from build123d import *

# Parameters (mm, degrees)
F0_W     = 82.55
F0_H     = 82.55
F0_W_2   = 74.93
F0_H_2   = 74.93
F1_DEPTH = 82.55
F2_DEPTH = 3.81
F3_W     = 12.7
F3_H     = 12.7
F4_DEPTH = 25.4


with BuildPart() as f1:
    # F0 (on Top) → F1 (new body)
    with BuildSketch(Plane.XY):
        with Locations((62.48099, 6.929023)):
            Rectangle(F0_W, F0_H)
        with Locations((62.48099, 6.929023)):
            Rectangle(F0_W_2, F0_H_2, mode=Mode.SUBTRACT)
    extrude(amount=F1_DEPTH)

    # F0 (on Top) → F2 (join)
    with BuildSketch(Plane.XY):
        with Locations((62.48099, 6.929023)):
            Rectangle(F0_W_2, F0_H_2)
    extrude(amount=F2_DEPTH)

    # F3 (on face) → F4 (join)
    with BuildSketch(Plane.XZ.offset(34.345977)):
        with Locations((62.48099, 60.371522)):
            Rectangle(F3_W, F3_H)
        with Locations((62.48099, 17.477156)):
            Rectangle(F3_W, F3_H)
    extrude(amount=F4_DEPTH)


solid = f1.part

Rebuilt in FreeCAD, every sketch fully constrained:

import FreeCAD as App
import Part
import Sketcher
Q = App.Units.Quantity


def add_polygon(sketch, points):
    """Adds a closed chain of lines whose ends are joined by coincident constraints."""
    first, n = sketch.GeometryCount, len(points)
    for a, b in zip(points, points[1:] + points[:1]):
        sketch.addGeometry(Part.LineSegment(App.Vector(*a, 0), App.Vector(*b, 0)), False)
    for i in range(n):
        sketch.addConstraint(Sketcher.Constraint("Coincident", first + i, 2, first + (i + 1) % n, 1))

doc = App.newDocument("Part")
body = doc.addObject("PartDesign::Body", "Body")

sketch1 = doc.addObject("Sketcher::SketchObject", "Sketch")
body.addObject(sketch1)
sketch1.AttachmentSupport = (doc.XY_Plane, [""])
sketch1.MapMode = "FlatFace"
add_polygon(sketch1, [(21.20599, 48.204023), (21.20599, -34.345977), (103.75599, -34.345977), (103.75599, 48.204023)])
add_polygon(sketch1, [(99.94599, -30.535977), (25.01599, -30.535977), (25.01599, 44.394023), (99.94599, 44.394023)])
sketch1.addConstraint(Sketcher.Constraint("Vertical", 0))
sketch1.addConstraint(Sketcher.Constraint("Horizontal", 1))
sketch1.addConstraint(Sketcher.Constraint("Vertical", 2))
sketch1.addConstraint(Sketcher.Constraint("Horizontal", 3))
sketch1.addConstraint(Sketcher.Constraint("Horizontal", 4))
sketch1.addConstraint(Sketcher.Constraint("Vertical", 5))
sketch1.addConstraint(Sketcher.Constraint("Horizontal", 6))
sketch1.addConstraint(Sketcher.Constraint("Vertical", 7))
sketch1.addConstraint(Sketcher.Constraint("Equal", 3, 0))
sketch1.addConstraint(Sketcher.Constraint("Equal", 6, 5))
sketch1.addConstraint(Sketcher.Constraint("DistanceX", 1, 1, 1, 2, Q("3.25 in")))
sketch1.addConstraint(Sketcher.Constraint("DistanceX", 4, 2, 4, 1, Q("2.95 in")))
sketch1.addConstraint(Sketcher.Constraint("DistanceX", 4, 2, 1, 2, Q("3.1 in")))
sketch1.addConstraint(Sketcher.Constraint("DistanceY", 4, 2, 3, 2, Q("3.1 in")))
sketch1.addConstraint(Sketcher.Constraint("DistanceX", -1, 1, 0, 2, Q("21.20599 mm")))
sketch1.addConstraint(Sketcher.Constraint("DistanceY", 0, 2, -1, 1, Q("34.345977 mm")))
pad1 = doc.addObject("PartDesign::Pad", "Pad")
body.addObject(pad1)
pad1.Profile = sketch1
pad1.Length = Q("3.25 in")

sketch2 = doc.addObject("Sketcher::SketchObject", "Sketch001")
body.addObject(sketch2)
sketch2.AttachmentSupport = (doc.XY_Plane, [""])
sketch2.MapMode = "FlatFace"
add_polygon(sketch2, [(25.01599, 44.394023), (25.01599, -30.535977), (99.94599, -30.535977), (99.94599, 44.394023)])
sketch2.addConstraint(Sketcher.Constraint("Vertical", 0))
sketch2.addConstraint(Sketcher.Constraint("Horizontal", 1))
sketch2.addConstraint(Sketcher.Constraint("Vertical", 2))
sketch2.addConstraint(Sketcher.Constraint("Horizontal", 3))
sketch2.addConstraint(Sketcher.Constraint("Equal", 3, 0))
sketch2.addConstraint(Sketcher.Constraint("DistanceX", 1, 1, 1, 2, Q("2.95 in")))
sketch2.addConstraint(Sketcher.Constraint("DistanceX", -1, 1, 0, 2, Q("25.01599 mm")))
sketch2.addConstraint(Sketcher.Constraint("DistanceY", 0, 2, -1, 1, Q("30.535977 mm")))
pad2 = doc.addObject("PartDesign::Pad", "Pad001")
body.addObject(pad2)
pad2.Profile = sketch2
pad2.Length = Q("0.15 in")

sketch3 = doc.addObject("Sketcher::SketchObject", "Sketch002")
body.addObject(sketch3)
sketch3.AttachmentSupport = (doc.XZ_Plane, [""])
sketch3.MapMode = "FlatFace"
sketch3.AttachmentOffset = App.Placement(App.Vector(0, 0, 34.345977), App.Rotation())
add_polygon(sketch3, [(56.13099, 66.721522), (56.13099, 54.021522), (68.83099, 54.021522), (68.83099, 66.721522)])
add_polygon(sketch3, [(56.13099, 23.827156), (56.13099, 11.127156), (68.83099, 11.127156), (68.83099, 23.827156)])
sketch3.addConstraint(Sketcher.Constraint("Vertical", 0))
sketch3.addConstraint(Sketcher.Constraint("Horizontal", 1))
sketch3.addConstraint(Sketcher.Constraint("Vertical", 2))
sketch3.addConstraint(Sketcher.Constraint("Horizontal", 3))
sketch3.addConstraint(Sketcher.Constraint("Vertical", 4))
sketch3.addConstraint(Sketcher.Constraint("Horizontal", 5))
sketch3.addConstraint(Sketcher.Constraint("Vertical", 6))
sketch3.addConstraint(Sketcher.Constraint("Horizontal", 7))
sketch3.addConstraint(Sketcher.Constraint("Vertical", 3, 2, 4, 2))
sketch3.addConstraint(Sketcher.Constraint("Vertical", 2, 2, 5, 2))
sketch3.addConstraint(Sketcher.Constraint("Equal", 7, 0))
sketch3.addConstraint(Sketcher.Constraint("Equal", 2, 4))
sketch3.addConstraint(Sketcher.Constraint("DistanceX", 1, 1, 1, 2, Q("0.5 in")))
sketch3.addConstraint(Sketcher.Constraint("DistanceX", -1, 1, 0, 2, Q("56.13099 mm")))
sketch3.addConstraint(Sketcher.Constraint("DistanceY", -1, 1, 0, 2, Q("54.021522 mm")))
sketch3.addConstraint(Sketcher.Constraint("DistanceY", -1, 1, 4, 2, Q("11.127156 mm")))
pad3 = doc.addObject("PartDesign::Pad", "Pad002")
body.addObject(pad3)
pad3.Profile = sketch3
pad3.Length = Q("1 in")

doc.recompute()
